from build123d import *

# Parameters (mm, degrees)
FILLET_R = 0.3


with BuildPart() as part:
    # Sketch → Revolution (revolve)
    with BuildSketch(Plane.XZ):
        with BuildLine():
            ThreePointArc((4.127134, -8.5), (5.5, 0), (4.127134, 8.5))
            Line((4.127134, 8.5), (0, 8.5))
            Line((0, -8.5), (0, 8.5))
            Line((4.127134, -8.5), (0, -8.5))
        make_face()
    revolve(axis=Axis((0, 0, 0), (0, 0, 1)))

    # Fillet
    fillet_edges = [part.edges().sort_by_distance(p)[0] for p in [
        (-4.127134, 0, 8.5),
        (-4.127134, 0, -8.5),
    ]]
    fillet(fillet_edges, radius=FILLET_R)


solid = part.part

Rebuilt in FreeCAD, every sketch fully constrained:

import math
import FreeCAD as App
import Part
import Sketcher


def edges_at(feature, points):
    """Names of the edges that pass closest to the given points."""
    edges = feature.Shape.Edges
    near = lambda p: min(range(len(edges)), key=lambda i: edges[i].distToShape(Part.Vertex(*p))[0])
    return sorted({f"Edge{near(p) + 1}" for p in points})

doc = App.newDocument("Part")
params = doc.addObject("Spreadsheet::Sheet", "Params")
for row, (alias, value) in enumerate([
    ("sketch1_radius", "26.999999 mm"),
    ("sketch1_height", "17 mm"),
    ("revolution_angle", "360 deg"),
    ("fillet_radius", "0.3 mm"),
], start=1):
    params.set(f"A{row}", alias)
    params.set(f"B{row}", "=" + value)
    params.setAlias(f"B{row}", alias)

body = doc.addObject("PartDesign::Body", "Body")

sketch1 = doc.addObject("Sketcher::SketchObject", "Sketch")
body.addObject(sketch1)
sketch1.AttachmentSupport = (doc.XZ_Plane, [""])
sketch1.MapMode = "FlatFace"
sketch1.addGeometry(Part.ArcOfCircle(Part.Circle(App.Vector(-21.5, 0, 0), App.Vector(0, 0, 1), 27), math.radians(-18), math.radians(18)), False)
sketch1.addGeometry(Part.LineSegment(App.Vector(4.1, 8.5, 0), App.Vector(0, 8.5, 0)), False)
sketch1.addGeometry(Part.LineSegment(App.Vector(0, 8.5, 0), App.Vector(0, -8.5, 0)), False)
sketch1.addGeometry(Part.LineSegment(App.Vector(0, -8.5, 0), App.Vector(4.1, -8.5, 0)), False)
sketch1.addConstraint(Sketcher.Constraint("Coincident", 0, 2, 1, 1))
sketch1.addConstraint(Sketcher.Constraint("Coincident", 1, 2, 2, 1))
sketch1.addConstraint(Sketcher.Constraint("Coincident", 2, 2, 3, 1))
sketch1.addConstraint(Sketcher.Constraint("Coincident", 3, 2, 0, 1))
sketch1.addConstraint(Sketcher.Constraint("Horizontal", 1))
sketch1.addConstraint(Sketcher.Constraint("Vertical", 2))
sketch1.addConstraint(Sketcher.Constraint("Horizontal", 3))
sketch1.addConstraint(Sketcher.Constraint("Symmetric", 1, 2, 2, 2, -1, 1))
sketch1.addConstraint(Sketcher.Constraint("PointOnObject", 0, 3, -1))
sketch1.addConstraint(Sketcher.Constraint("Radius", 0, 26.999999))
sketch1.addConstraint(Sketcher.Constraint("DistanceY", 2, 2, 2, 1, 17.0))
sketch1.addConstraint(Sketcher.Constraint("DistanceX", 0, 3, -1, 1, 21.499999))
sketch1.setExpression("Constraints[9]", "Params.sketch1_radius")
sketch1.setExpression("Constraints[10]", "Params.sketch1_height")
revolution = doc.addObject("PartDesign::Revolution", "Revolution")
body.addObject(revolution)
revolution.Profile = sketch1
revolution.ReferenceAxis = (sketch1, ["V_Axis"])
revolution.setExpression("Angle", "Params.revolution_angle")
doc.recompute()

fillet = doc.addObject("PartDesign::Fillet", "Fillet")
body.addObject(fillet)
fillet.Base = (revolution, edges_at(revolution, [(-4.127, 0, 8.5), (-4.127, 0, -8.5)]))
fillet.setExpression("Radius", "Params.fillet_radius")

doc.recompute()
